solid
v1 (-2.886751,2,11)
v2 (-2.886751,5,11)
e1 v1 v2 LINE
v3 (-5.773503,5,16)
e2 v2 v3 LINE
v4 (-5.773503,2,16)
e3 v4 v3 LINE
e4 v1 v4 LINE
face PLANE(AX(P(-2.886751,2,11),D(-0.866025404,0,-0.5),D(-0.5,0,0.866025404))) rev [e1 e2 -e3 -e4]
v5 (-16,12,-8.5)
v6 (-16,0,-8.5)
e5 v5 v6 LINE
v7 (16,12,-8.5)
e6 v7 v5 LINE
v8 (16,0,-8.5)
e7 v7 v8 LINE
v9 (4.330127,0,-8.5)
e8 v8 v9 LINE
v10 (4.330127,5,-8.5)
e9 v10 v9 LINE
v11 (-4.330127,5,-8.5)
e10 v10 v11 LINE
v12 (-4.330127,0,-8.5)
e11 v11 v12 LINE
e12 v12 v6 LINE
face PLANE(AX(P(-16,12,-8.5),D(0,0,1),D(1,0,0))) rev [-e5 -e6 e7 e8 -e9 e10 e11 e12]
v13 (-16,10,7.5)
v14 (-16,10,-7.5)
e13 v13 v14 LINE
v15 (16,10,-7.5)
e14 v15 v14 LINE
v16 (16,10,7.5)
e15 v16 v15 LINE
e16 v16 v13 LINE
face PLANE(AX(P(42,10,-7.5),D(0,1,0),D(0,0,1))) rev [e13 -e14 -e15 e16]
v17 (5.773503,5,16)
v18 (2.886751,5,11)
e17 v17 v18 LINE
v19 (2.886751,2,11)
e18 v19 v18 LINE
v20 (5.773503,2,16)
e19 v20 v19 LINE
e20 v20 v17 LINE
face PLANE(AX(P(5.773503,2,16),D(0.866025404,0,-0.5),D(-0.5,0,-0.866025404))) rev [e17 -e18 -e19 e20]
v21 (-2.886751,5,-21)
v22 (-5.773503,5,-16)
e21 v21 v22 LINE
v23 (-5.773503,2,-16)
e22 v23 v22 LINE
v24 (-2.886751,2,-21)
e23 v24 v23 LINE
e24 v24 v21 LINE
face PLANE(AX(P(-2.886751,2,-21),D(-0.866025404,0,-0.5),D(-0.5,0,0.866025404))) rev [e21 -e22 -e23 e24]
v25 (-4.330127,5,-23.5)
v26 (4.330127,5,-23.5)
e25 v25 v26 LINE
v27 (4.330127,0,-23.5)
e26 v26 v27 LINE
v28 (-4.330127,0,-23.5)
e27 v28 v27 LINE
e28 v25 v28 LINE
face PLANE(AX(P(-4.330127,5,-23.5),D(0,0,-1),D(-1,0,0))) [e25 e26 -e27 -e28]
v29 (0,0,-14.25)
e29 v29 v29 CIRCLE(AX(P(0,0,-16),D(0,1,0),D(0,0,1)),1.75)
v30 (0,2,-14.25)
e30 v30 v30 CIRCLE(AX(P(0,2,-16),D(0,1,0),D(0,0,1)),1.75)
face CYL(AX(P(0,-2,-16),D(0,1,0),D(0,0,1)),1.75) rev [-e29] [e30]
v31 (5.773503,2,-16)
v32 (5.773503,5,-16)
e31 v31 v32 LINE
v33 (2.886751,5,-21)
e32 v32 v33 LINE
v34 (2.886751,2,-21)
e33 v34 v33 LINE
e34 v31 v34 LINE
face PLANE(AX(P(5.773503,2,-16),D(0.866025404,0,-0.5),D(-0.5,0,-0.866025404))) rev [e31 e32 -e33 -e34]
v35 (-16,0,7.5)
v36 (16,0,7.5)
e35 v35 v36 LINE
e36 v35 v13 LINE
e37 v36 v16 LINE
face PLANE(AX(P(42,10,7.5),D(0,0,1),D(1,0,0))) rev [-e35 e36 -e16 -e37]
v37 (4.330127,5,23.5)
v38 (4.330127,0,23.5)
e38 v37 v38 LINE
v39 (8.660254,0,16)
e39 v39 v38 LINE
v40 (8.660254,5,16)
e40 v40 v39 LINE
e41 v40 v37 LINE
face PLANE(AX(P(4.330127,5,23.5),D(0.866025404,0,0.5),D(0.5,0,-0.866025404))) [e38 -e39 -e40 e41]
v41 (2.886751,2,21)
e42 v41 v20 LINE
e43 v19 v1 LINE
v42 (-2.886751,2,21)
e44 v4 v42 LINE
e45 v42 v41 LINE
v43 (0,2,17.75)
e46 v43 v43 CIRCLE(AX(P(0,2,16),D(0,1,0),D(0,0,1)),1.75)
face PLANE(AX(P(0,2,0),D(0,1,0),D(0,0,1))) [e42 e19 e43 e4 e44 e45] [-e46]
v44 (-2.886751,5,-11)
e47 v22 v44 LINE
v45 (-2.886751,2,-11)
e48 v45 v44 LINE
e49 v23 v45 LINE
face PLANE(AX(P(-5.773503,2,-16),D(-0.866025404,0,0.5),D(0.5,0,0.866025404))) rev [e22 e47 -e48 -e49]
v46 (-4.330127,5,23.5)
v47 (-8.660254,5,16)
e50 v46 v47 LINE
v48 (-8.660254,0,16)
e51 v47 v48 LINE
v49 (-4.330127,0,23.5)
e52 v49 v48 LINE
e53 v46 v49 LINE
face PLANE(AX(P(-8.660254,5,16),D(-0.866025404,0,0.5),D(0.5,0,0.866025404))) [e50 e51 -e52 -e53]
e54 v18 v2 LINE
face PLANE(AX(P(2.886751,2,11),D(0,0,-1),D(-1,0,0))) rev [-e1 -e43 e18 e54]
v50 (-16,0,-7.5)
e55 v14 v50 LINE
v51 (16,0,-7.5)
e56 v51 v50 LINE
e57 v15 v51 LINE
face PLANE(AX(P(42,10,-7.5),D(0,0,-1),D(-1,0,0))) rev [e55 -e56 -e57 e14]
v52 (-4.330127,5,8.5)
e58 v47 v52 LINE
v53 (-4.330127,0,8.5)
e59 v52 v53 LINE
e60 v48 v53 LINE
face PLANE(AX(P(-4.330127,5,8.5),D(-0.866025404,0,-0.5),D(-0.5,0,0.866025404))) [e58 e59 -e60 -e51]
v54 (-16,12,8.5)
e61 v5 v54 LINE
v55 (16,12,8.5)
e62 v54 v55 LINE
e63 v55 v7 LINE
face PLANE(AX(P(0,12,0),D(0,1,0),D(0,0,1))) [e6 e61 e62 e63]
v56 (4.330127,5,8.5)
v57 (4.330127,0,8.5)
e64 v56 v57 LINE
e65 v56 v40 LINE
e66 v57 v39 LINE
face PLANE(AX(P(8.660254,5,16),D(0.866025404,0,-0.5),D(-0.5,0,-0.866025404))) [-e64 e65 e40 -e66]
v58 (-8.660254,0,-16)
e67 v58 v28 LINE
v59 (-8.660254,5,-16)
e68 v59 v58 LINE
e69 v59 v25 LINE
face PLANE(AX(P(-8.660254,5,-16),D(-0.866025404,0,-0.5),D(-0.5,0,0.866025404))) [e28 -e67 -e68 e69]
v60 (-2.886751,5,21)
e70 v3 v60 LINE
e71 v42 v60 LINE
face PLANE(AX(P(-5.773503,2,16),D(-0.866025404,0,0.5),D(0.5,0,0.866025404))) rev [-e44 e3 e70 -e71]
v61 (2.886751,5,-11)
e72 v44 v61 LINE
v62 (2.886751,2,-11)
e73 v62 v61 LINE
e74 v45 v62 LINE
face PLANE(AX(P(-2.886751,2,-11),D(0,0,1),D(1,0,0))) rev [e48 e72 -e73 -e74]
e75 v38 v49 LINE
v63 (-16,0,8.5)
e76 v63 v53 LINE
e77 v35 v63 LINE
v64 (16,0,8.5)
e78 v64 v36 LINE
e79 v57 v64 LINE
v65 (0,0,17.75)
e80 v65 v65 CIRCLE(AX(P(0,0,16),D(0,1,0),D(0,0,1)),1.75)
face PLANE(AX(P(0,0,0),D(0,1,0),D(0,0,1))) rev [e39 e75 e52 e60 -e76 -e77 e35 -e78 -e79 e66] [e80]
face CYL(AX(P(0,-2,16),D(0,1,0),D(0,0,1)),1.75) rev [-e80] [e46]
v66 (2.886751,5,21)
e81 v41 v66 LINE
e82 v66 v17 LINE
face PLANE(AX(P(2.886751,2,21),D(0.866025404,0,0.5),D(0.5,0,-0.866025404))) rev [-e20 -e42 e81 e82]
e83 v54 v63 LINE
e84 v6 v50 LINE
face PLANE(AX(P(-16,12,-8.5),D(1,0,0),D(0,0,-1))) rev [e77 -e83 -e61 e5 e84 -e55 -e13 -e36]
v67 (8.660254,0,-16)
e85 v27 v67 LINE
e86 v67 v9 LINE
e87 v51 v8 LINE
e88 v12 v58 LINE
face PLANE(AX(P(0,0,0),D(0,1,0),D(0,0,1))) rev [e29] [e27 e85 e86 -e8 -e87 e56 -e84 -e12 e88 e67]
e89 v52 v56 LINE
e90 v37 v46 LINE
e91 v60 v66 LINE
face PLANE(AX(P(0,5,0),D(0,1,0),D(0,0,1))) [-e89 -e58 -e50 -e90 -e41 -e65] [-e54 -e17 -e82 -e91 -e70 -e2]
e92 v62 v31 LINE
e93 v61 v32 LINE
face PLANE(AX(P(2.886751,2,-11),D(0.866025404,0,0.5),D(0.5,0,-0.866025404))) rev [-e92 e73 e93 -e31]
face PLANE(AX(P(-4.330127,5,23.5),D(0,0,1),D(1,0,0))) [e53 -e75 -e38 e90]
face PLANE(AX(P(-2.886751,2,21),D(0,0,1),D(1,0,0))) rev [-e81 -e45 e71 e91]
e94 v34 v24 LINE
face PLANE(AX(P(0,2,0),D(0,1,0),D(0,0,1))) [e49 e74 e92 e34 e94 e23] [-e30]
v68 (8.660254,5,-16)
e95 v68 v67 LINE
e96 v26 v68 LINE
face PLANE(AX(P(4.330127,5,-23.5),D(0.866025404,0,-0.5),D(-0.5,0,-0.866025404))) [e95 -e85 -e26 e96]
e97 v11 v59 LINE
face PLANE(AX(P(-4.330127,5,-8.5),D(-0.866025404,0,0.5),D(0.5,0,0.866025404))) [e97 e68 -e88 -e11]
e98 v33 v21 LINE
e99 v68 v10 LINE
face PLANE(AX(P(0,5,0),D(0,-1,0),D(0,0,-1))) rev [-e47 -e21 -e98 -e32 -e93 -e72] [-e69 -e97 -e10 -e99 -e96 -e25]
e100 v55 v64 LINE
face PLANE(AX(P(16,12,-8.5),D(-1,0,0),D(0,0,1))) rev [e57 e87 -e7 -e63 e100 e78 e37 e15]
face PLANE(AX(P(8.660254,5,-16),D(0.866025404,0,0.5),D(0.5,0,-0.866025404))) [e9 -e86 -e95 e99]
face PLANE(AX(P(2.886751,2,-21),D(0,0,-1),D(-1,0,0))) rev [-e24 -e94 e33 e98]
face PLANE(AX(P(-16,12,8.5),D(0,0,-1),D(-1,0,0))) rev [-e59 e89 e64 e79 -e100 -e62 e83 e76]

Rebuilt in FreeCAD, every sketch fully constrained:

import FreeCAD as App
import Part
import Sketcher

V = App.Vector
Q = App.Units.Quantity


def add_polygon(sketch, points):
    """Adds a closed chain of lines whose ends are joined by coincident constraints."""
    first, n = sketch.GeometryCount, len(points)
    for a, b in zip(points, points[1:] + points[:1]):
        sketch.addGeometry(Part.LineSegment(App.Vector(*a, 0), App.Vector(*b, 0)), False)
    for i in range(n):
        sketch.addConstraint(Sketcher.Constraint("Coincident", first + i, 2, first + (i + 1) % n, 1))

doc = App.newDocument("Part")
body = doc.addObject("PartDesign::Body", "Body")

# Sketch on XZ plane
sketch1 = doc.addObject("Sketcher::SketchObject", "Sketch")
body.addObject(sketch1)
sketch1.AttachmentSupport = (doc.XZ_Plane, [""])
sketch1.MapMode = "FlatFace"
add_polygon(sketch1, [(-16, -8), (-16, 8), (16, 8), (16, -8)])  # lines 0-3
sketch1.addConstraint([
    Sketcher.Constraint("Vertical", 0),
    Sketcher.Constraint("Horizontal", 1),
    Sketcher.Constraint("Vertical", 2),
    Sketcher.Constraint("Horizontal", 3),
    Sketcher.Constraint("Symmetric", 0, 2, 2, 2, -1, 1),
    Sketcher.Constraint("DistanceX", 1, 1, 1, 2, Q("32 mm")),
    Sketcher.Constraint("DistanceY", 0, 1, 0, 2, Q("17 mm")),
])
pad1 = doc.addObject("PartDesign::Pad", "Pad")
body.addObject(pad1)
pad1.Profile = sketch1
pad1.Length = 12
pad1.Reversed = True

# Sketch on YZ plane
sketch2 = doc.addObject("Sketcher::SketchObject", "Sketch001")
body.addObject(sketch2)
sketch2.AttachmentSupport = (doc.YZ_Plane, [""])
sketch2.MapMode = "FlatFace"
sketch2.AttachmentOffset = App.Placement(V(0, 0, -16), App.Rotation())
add_polygon(sketch2, [(10, -8), (0, -8), (0, 8), (10, 8)])  # lines 0-3
sketch2.addConstraint([
    Sketcher.Constraint("Horizontal", 0),
    Sketcher.Constraint("Vertical", 1),
    Sketcher.Constraint("Horizontal", 2),
    Sketcher.Constraint("Vertical", 3),
    Sketcher.Constraint("Symmetric", 0, 2, 1, 2, -1, 1),
    Sketcher.Constraint("DistanceX", 0, 2, 0, 1, Q("10 mm")),
    Sketcher.Constraint("DistanceY", 1, 1, 1, 2, Q("15 mm")),
])
pocket1 = doc.addObject("PartDesign::Pocket", "Pocket")
body.addObject(pocket1)
pocket1.Profile = sketch2
pocket1.Length = 58
pocket1.Reversed = True

# Sketch on XZ plane
sketch3 = doc.addObject("Sketcher::SketchObject", "Sketch002")
body.addObject(sketch3)
sketch3.AttachmentSupport = (doc.XZ_Plane, [""])
sketch3.MapMode = "FlatFace"
add_polygon(sketch3, [(4, -8), (-4, -8), (-9, -16), (-4, -24), (4, -24), (9, -16)])  # lines 0-5
add_polygon(sketch3, [(4, 8), (9, 16), (4, 24), (-4, 24), (-9, 16), (-4, 8)])  # lines 6-11
sketch3.addConstraint([
    Sketcher.Constraint("Horizontal", 0),
    Sketcher.Constraint("Horizontal", 3),
    Sketcher.Constraint("Horizontal", 8),
    Sketcher.Constraint("Horizontal", 11),
    Sketcher.Constraint("Symmetric", 1, 2, 6, 2, -1, 1),
    Sketcher.Constraint("Symmetric", 2, 2, 7, 2, -1, 1),
    Sketcher.Constraint("Symmetric", 4, 2, 9, 2, -1, 1),
    Sketcher.Constraint("Symmetric", 5, 2, 10, 2, -1, 1),
    Sketcher.Constraint("Symmetric", 1, 2, 4, 2, -2),
    Sketcher.Constraint("Parallel", 1, 4),
    Sketcher.Constraint("Parallel", 2, 5),
    Sketcher.Constraint("Parallel", 4, 6),
    Sketcher.Constraint("Parallel", 6, 9),
    Sketcher.Constraint("Vertical", 0, 2, 2, 2),
    Sketcher.Constraint("Vertical", 3, 2, 5, 2),
    Sketcher.Constraint("Angle", 1, Q("-120 deg")),
    Sketcher.Constraint("DistanceY", 1, 2, -1, 1, Q("16 mm")),
    Sketcher.Constraint("DistanceY", 2, 2, 0, 2, Q("15 mm")),
    Sketcher.Constraint("DistanceX", 0, 2, 0, 1, Q("8.660254 mm")),
])
pad2 = doc.addObject("PartDesign::Pad", "Pad001")
body.addObject(pad2)
pad2.Profile = sketch3
pad2.Length = 5
pad2.Reversed = True

# Sketch on XZ plane
sketch4 = doc.addObject("Sketcher::SketchObject", "Sketch003")
body.addObject(sketch4)
sketch4.AttachmentSupport = (doc.XZ_Plane, [""])
sketch4.MapMode = "FlatFace"
sketch4.AttachmentOffset = App.Placement(V(0, 0, -5), App.Rotation())
add_polygon(sketch4, [(3, -11), (6, -16), (3, -21), (-3, -21), (-6, -16), (-3, -11)])  # lines 0-5
add_polygon(sketch4, [(3, 21), (6, 16), (3, 11), (-3, 11), (-6, 16), (-3, 21)])  # lines 6-11
sketch4.addConstraint([
    Sketcher.Constraint("Horizontal", 2),
    Sketcher.Constraint("Horizontal", 5),
    Sketcher.Constraint("Horizontal", 8),
    Sketcher.Constraint("Horizontal", 11),
    Sketcher.Constraint("Symmetric", 3, 2, 6, 2, -1, 1),
    Sketcher.Constraint("Symmetric", 4, 2, 7, 2, -1, 1),
    Sketcher.Constraint("Symmetric", 0, 2, 9, 2, -1, 1),
    Sketcher.Constraint("Symmetric", 1, 2, 10, 2, -1, 1),
    Sketcher.Constraint("Symmetric", 0, 2, 3, 2, -2),
    Sketcher.Constraint("Parallel", 0, 3),
    Sketcher.Constraint("Parallel", 1, 4),
    Sketcher.Constraint("Parallel", 3, 6),
    Sketcher.Constraint("Parallel", 6, 9),
    Sketcher.Constraint("Vertical", 2, 2, 4, 2),
    Sketcher.Constraint("Vertical", 1, 2, 5, 2),
    Sketcher.Constraint("Angle", 0, Q("-60 deg")),
    Sketcher.Constraint("DistanceY", 0, 2, -1, 1, Q("16 mm")),
    Sketcher.Constraint("DistanceY", 1, 2, -1, 1, Q("21 mm")),
    Sketcher.Constraint("DistanceX", 2, 2, 2, 1, Q("5.773503 mm")),
])
pocket2 = doc.addObject("PartDesign::Pocket", "Pocket001")
body.addObject(pocket2)
pocket2.Profile = sketch4
pocket2.Length = 3
pocket2.Reversed = True

# Sketch on XZ plane
sketch5 = doc.addObject("Sketcher::SketchObject", "Sketch004")
body.addObject(sketch5)
sketch5.AttachmentSupport = (doc.XZ_Plane, [""])
sketch5.MapMode = "FlatFace"
sketch5.AttachmentOffset = App.Placement(V(0, 0, -2), App.Rotation())
sketch5.addGeometry([
    Part.Circle(V(0, -16, 0), V(0, 0, 1), 1.8),
    Part.Circle(V(0, 16, 0), V(0, 0, 1), 1.8),
], False)
sketch5.addConstraint([
    Sketcher.Constraint("Equal", 0, 1),
    Sketcher.Constraint("Symmetric", 0, 3, 1, 3, -1, 1),
    Sketcher.Constraint("PointOnObject", 0, 3, -2),
    Sketcher.Constraint("Diameter", 0, Q("3.5 mm")),
    Sketcher.Constraint("DistanceY", 0, 3, -1, 1, Q("16 mm")),
])
pocket3 = doc.addObject("PartDesign::Pocket", "Pocket002")
body.addObject(pocket3)
pocket3.Profile = sketch5
pocket3.Length = 4
pocket3.Reversed = True

doc.recompute()
